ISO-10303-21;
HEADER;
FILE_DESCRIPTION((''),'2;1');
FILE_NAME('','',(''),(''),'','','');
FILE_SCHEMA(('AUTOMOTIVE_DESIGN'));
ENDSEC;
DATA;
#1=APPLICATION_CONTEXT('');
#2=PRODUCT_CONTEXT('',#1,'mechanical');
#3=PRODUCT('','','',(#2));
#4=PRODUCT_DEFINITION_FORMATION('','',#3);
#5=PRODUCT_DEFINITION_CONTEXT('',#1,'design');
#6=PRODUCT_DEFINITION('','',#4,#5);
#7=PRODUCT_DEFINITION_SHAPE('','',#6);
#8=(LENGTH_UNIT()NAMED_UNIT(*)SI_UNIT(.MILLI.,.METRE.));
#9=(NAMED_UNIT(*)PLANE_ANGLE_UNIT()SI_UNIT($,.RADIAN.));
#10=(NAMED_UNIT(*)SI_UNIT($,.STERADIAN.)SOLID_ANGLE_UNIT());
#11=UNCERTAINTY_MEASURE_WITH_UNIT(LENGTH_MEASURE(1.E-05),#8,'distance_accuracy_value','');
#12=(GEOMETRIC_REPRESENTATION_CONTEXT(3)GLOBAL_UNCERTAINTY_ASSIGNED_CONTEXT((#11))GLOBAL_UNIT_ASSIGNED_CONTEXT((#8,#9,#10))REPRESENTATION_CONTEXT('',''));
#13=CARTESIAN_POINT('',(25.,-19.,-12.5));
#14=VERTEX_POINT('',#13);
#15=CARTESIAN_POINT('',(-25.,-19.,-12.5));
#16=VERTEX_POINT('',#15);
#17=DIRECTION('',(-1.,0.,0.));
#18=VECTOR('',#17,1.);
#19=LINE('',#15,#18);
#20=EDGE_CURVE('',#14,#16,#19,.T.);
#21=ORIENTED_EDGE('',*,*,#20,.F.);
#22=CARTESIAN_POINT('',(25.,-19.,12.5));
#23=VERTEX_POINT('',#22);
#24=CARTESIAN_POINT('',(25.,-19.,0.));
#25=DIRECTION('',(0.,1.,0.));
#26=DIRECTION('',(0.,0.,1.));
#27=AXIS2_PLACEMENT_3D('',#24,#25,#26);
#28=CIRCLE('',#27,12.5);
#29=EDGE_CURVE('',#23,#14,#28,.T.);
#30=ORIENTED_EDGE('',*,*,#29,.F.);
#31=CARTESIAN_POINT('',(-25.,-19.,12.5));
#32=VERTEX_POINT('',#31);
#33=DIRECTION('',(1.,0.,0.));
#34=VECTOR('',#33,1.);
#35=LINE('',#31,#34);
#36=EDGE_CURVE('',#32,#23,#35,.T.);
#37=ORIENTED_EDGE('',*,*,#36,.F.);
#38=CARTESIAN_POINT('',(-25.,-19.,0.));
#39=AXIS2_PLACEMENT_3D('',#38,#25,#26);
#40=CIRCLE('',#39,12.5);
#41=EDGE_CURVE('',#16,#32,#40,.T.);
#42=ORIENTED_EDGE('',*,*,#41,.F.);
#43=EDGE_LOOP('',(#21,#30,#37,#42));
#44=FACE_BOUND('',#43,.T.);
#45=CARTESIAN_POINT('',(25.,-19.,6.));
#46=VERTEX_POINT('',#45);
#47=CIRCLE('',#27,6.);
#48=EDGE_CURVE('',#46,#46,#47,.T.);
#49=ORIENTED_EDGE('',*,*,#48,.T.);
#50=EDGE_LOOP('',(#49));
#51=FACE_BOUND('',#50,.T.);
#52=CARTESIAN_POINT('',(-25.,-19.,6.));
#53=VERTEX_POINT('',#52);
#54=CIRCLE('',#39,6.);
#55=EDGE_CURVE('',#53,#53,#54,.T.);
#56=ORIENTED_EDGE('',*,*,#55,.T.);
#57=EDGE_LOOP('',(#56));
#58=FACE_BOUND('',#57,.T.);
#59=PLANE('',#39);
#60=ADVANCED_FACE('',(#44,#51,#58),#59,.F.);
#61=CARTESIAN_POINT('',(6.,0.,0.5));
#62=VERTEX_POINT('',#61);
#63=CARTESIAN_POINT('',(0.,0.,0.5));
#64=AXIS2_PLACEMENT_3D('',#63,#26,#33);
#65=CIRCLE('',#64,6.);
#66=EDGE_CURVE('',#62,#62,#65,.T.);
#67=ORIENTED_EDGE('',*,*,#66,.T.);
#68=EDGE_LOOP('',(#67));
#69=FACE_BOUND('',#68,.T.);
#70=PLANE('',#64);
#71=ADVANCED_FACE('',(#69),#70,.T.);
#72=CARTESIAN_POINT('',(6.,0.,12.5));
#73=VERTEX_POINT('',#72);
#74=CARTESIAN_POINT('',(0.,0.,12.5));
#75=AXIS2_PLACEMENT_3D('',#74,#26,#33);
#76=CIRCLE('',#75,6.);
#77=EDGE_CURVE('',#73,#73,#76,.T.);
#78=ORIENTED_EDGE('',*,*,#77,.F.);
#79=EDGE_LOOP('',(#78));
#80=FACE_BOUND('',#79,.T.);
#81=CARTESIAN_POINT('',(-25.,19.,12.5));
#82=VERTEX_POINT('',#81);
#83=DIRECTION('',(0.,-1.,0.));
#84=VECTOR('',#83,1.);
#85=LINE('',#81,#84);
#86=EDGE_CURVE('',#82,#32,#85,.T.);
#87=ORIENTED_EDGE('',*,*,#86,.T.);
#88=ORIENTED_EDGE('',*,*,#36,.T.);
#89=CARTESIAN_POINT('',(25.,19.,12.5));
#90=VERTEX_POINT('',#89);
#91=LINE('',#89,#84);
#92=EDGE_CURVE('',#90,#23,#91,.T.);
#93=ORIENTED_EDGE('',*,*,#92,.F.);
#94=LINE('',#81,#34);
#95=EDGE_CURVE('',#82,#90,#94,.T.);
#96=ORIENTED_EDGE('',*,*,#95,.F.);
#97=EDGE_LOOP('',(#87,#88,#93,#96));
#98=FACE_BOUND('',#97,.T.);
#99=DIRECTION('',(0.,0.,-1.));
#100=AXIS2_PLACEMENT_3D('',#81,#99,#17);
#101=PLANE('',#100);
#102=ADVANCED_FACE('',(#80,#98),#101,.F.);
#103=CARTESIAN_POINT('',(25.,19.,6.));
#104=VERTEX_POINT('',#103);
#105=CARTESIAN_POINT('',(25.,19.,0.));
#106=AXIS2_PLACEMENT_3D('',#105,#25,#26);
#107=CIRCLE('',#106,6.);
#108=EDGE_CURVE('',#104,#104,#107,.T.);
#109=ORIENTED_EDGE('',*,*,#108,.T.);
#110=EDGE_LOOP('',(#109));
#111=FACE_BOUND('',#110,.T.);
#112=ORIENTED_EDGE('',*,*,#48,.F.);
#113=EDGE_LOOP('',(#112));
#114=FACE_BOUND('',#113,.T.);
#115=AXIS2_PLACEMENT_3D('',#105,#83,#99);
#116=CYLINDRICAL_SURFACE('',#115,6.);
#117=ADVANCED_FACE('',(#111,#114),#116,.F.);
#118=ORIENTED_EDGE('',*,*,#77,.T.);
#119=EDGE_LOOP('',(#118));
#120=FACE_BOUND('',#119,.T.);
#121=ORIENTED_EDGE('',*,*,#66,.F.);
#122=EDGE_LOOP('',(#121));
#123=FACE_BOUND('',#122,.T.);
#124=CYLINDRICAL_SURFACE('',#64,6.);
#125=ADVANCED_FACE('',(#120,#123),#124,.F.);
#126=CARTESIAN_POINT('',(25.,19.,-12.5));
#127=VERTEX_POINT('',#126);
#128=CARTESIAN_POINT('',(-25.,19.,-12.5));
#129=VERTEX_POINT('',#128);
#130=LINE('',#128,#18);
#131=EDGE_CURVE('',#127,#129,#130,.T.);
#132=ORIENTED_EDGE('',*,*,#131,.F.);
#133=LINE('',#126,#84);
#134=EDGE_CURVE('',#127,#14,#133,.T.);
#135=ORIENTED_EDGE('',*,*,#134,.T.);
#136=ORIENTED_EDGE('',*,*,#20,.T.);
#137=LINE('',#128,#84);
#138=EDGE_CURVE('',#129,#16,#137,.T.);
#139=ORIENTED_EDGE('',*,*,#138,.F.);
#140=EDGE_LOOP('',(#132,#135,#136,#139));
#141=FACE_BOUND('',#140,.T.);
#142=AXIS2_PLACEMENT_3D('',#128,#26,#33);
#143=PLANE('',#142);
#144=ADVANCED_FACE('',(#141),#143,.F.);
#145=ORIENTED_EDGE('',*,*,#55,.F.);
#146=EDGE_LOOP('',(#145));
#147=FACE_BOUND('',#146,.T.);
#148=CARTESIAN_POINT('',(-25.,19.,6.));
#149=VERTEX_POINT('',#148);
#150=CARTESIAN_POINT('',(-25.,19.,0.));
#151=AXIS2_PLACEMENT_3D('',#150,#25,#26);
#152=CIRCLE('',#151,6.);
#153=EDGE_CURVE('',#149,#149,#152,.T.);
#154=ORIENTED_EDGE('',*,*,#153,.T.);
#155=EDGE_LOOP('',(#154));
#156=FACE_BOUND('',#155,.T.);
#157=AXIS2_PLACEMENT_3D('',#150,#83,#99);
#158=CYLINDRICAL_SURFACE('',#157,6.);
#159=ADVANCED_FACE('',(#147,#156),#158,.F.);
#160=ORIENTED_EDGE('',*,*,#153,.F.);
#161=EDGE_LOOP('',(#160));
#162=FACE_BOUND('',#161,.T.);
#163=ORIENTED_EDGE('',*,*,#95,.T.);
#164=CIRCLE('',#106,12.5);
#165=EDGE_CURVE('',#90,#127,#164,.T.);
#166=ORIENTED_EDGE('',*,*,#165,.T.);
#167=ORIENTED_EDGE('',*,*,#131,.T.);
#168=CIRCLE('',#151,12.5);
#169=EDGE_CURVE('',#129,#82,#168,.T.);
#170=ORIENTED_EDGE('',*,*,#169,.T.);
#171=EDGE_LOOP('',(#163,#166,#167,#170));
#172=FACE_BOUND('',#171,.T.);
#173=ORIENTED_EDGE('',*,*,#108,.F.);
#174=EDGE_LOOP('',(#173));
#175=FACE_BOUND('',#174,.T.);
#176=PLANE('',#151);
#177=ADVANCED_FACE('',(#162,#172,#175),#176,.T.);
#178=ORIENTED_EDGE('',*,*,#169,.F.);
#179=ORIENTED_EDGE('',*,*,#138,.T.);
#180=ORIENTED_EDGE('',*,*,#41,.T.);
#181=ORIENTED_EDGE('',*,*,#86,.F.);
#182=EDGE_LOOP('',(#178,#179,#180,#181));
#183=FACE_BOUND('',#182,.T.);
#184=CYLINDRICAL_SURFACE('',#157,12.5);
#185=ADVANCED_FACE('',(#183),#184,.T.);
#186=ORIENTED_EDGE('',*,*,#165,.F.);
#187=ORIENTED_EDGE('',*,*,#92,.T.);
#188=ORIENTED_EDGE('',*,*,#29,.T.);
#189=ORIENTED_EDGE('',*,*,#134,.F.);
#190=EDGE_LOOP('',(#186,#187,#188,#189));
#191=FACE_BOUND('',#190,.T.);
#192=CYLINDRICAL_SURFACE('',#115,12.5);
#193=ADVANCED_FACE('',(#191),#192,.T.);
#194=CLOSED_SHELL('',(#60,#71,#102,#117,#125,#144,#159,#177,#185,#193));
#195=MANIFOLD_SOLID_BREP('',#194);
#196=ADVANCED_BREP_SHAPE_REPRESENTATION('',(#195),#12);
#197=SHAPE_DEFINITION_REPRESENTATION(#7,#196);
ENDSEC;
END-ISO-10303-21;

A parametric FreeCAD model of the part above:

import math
import FreeCAD as App
import Part
import Sketcher

V = App.Vector
Q = App.Units.Quantity

doc = App.newDocument("Part")
params = doc.addObject("Spreadsheet::Sheet", "Params")
for row, (alias, value) in enumerate([
    ("sketch1_diameter", "12 mm"),
    ("sketch1_radius", "12.5 mm"),
    ("sketch1_width", "50 mm"),
    ("pad1_length", "38 mm"),
    ("sketch2_diameter", "12 mm"),
    ("pocket1_length", "12 mm"),
], start=1):
    params.set(f"A{row}", alias)
    params.set(f"B{row}", "=" + value)
    params.setAlias(f"B{row}", alias)

body = doc.addObject("PartDesign::Body", "Body")

# Sketch on XZ plane
sketch1 = body.newObject("Sketcher::SketchObject", "Sketch")
sketch1.AttachmentSupport = (doc.getObject("XZ_Plane"), [""])
sketch1.MapMode = "FlatFace"
sketch1.addGeometry([
    Part.LineSegment(V(25, -12, 0), V(-25, -12, 0)),  # 0
    Part.ArcOfCircle(Part.Circle(V(-25, 0, 0), V(0, 0, 1), 12), math.radians(90), math.radians(270)),  # 1
    Part.LineSegment(V(-25, 12, 0), V(25, 12, 0)),  # 2
    Part.ArcOfCircle(Part.Circle(V(25, 0, 0), V(0, 0, 1), 12), math.radians(-90), math.radians(90)),  # 3
    Part.Circle(V(25, 0, 0), V(0, 0, 1), 6),  # 4
    Part.Circle(V(-25, 0, 0), V(0, 0, 1), 6),  # 5
], False)
sketch1.addConstraint([
    Sketcher.Constraint("Tangent", 0, 2, 1, 2),
    Sketcher.Constraint("Tangent", 1, 1, 2, 1),
    Sketcher.Constraint("Tangent", 2, 2, 3, 2),
    Sketcher.Constraint("Tangent", 3, 1, 0, 1),
    Sketcher.Constraint("Horizontal", 0),
    Sketcher.Constraint("Horizontal", 2),
    Sketcher.Constraint("Coincident", 4, 3, 3, 3),
    Sketcher.Constraint("Coincident", 5, 3, 1, 3),
    Sketcher.Constraint("Equal", 4, 5),
    Sketcher.Constraint("Symmetric", 1, 3, 3, 3, -1, 1),
    Sketcher.Constraint("Diameter", 4, Q("12 mm")),
    Sketcher.Constraint("Radius", 1, Q("12.5 mm")),
    Sketcher.Constraint("DistanceX", 0, 2, 0, 1, Q("50 mm")),
])
sketch1.setExpression("Constraints[10]", "Params.sketch1_diameter")
sketch1.setExpression("Constraints[11]", "Params.sketch1_radius")
sketch1.setExpression("Constraints[12]", "Params.sketch1_width")
pad1 = body.newObject("PartDesign::Pad", "Pad")
pad1.Profile = sketch1
pad1.setExpression("Length", "Params.pad1_length")
pad1.Midplane = True

# Sketch on XY plane
sketch2 = body.newObject("Sketcher::SketchObject", "Sketch001")
sketch2.AttachmentSupport = (doc.getObject("XY_Plane"), [""])
sketch2.MapMode = "FlatFace"
sketch2.AttachmentOffset = App.Placement(V(0, 0, 12.5), App.Rotation())
sketch2.addGeometry(Part.Circle(V(0, 0, 0), V(0, 0, 1), 6), False)
sketch2.addConstraint([
    Sketcher.Constraint("Coincident", 0, 3, -1, 1),
    Sketcher.Constraint("Diameter", 0, Q("12 mm")),
])
sketch2.setExpression("Constraints[1]", "Params.sketch2_diameter")
pocket1 = body.newObject("PartDesign::Pocket", "Pocket")
pocket1.Profile = sketch2
pocket1.setExpression("Length", "Params.pocket1_length")

doc.recompute()
